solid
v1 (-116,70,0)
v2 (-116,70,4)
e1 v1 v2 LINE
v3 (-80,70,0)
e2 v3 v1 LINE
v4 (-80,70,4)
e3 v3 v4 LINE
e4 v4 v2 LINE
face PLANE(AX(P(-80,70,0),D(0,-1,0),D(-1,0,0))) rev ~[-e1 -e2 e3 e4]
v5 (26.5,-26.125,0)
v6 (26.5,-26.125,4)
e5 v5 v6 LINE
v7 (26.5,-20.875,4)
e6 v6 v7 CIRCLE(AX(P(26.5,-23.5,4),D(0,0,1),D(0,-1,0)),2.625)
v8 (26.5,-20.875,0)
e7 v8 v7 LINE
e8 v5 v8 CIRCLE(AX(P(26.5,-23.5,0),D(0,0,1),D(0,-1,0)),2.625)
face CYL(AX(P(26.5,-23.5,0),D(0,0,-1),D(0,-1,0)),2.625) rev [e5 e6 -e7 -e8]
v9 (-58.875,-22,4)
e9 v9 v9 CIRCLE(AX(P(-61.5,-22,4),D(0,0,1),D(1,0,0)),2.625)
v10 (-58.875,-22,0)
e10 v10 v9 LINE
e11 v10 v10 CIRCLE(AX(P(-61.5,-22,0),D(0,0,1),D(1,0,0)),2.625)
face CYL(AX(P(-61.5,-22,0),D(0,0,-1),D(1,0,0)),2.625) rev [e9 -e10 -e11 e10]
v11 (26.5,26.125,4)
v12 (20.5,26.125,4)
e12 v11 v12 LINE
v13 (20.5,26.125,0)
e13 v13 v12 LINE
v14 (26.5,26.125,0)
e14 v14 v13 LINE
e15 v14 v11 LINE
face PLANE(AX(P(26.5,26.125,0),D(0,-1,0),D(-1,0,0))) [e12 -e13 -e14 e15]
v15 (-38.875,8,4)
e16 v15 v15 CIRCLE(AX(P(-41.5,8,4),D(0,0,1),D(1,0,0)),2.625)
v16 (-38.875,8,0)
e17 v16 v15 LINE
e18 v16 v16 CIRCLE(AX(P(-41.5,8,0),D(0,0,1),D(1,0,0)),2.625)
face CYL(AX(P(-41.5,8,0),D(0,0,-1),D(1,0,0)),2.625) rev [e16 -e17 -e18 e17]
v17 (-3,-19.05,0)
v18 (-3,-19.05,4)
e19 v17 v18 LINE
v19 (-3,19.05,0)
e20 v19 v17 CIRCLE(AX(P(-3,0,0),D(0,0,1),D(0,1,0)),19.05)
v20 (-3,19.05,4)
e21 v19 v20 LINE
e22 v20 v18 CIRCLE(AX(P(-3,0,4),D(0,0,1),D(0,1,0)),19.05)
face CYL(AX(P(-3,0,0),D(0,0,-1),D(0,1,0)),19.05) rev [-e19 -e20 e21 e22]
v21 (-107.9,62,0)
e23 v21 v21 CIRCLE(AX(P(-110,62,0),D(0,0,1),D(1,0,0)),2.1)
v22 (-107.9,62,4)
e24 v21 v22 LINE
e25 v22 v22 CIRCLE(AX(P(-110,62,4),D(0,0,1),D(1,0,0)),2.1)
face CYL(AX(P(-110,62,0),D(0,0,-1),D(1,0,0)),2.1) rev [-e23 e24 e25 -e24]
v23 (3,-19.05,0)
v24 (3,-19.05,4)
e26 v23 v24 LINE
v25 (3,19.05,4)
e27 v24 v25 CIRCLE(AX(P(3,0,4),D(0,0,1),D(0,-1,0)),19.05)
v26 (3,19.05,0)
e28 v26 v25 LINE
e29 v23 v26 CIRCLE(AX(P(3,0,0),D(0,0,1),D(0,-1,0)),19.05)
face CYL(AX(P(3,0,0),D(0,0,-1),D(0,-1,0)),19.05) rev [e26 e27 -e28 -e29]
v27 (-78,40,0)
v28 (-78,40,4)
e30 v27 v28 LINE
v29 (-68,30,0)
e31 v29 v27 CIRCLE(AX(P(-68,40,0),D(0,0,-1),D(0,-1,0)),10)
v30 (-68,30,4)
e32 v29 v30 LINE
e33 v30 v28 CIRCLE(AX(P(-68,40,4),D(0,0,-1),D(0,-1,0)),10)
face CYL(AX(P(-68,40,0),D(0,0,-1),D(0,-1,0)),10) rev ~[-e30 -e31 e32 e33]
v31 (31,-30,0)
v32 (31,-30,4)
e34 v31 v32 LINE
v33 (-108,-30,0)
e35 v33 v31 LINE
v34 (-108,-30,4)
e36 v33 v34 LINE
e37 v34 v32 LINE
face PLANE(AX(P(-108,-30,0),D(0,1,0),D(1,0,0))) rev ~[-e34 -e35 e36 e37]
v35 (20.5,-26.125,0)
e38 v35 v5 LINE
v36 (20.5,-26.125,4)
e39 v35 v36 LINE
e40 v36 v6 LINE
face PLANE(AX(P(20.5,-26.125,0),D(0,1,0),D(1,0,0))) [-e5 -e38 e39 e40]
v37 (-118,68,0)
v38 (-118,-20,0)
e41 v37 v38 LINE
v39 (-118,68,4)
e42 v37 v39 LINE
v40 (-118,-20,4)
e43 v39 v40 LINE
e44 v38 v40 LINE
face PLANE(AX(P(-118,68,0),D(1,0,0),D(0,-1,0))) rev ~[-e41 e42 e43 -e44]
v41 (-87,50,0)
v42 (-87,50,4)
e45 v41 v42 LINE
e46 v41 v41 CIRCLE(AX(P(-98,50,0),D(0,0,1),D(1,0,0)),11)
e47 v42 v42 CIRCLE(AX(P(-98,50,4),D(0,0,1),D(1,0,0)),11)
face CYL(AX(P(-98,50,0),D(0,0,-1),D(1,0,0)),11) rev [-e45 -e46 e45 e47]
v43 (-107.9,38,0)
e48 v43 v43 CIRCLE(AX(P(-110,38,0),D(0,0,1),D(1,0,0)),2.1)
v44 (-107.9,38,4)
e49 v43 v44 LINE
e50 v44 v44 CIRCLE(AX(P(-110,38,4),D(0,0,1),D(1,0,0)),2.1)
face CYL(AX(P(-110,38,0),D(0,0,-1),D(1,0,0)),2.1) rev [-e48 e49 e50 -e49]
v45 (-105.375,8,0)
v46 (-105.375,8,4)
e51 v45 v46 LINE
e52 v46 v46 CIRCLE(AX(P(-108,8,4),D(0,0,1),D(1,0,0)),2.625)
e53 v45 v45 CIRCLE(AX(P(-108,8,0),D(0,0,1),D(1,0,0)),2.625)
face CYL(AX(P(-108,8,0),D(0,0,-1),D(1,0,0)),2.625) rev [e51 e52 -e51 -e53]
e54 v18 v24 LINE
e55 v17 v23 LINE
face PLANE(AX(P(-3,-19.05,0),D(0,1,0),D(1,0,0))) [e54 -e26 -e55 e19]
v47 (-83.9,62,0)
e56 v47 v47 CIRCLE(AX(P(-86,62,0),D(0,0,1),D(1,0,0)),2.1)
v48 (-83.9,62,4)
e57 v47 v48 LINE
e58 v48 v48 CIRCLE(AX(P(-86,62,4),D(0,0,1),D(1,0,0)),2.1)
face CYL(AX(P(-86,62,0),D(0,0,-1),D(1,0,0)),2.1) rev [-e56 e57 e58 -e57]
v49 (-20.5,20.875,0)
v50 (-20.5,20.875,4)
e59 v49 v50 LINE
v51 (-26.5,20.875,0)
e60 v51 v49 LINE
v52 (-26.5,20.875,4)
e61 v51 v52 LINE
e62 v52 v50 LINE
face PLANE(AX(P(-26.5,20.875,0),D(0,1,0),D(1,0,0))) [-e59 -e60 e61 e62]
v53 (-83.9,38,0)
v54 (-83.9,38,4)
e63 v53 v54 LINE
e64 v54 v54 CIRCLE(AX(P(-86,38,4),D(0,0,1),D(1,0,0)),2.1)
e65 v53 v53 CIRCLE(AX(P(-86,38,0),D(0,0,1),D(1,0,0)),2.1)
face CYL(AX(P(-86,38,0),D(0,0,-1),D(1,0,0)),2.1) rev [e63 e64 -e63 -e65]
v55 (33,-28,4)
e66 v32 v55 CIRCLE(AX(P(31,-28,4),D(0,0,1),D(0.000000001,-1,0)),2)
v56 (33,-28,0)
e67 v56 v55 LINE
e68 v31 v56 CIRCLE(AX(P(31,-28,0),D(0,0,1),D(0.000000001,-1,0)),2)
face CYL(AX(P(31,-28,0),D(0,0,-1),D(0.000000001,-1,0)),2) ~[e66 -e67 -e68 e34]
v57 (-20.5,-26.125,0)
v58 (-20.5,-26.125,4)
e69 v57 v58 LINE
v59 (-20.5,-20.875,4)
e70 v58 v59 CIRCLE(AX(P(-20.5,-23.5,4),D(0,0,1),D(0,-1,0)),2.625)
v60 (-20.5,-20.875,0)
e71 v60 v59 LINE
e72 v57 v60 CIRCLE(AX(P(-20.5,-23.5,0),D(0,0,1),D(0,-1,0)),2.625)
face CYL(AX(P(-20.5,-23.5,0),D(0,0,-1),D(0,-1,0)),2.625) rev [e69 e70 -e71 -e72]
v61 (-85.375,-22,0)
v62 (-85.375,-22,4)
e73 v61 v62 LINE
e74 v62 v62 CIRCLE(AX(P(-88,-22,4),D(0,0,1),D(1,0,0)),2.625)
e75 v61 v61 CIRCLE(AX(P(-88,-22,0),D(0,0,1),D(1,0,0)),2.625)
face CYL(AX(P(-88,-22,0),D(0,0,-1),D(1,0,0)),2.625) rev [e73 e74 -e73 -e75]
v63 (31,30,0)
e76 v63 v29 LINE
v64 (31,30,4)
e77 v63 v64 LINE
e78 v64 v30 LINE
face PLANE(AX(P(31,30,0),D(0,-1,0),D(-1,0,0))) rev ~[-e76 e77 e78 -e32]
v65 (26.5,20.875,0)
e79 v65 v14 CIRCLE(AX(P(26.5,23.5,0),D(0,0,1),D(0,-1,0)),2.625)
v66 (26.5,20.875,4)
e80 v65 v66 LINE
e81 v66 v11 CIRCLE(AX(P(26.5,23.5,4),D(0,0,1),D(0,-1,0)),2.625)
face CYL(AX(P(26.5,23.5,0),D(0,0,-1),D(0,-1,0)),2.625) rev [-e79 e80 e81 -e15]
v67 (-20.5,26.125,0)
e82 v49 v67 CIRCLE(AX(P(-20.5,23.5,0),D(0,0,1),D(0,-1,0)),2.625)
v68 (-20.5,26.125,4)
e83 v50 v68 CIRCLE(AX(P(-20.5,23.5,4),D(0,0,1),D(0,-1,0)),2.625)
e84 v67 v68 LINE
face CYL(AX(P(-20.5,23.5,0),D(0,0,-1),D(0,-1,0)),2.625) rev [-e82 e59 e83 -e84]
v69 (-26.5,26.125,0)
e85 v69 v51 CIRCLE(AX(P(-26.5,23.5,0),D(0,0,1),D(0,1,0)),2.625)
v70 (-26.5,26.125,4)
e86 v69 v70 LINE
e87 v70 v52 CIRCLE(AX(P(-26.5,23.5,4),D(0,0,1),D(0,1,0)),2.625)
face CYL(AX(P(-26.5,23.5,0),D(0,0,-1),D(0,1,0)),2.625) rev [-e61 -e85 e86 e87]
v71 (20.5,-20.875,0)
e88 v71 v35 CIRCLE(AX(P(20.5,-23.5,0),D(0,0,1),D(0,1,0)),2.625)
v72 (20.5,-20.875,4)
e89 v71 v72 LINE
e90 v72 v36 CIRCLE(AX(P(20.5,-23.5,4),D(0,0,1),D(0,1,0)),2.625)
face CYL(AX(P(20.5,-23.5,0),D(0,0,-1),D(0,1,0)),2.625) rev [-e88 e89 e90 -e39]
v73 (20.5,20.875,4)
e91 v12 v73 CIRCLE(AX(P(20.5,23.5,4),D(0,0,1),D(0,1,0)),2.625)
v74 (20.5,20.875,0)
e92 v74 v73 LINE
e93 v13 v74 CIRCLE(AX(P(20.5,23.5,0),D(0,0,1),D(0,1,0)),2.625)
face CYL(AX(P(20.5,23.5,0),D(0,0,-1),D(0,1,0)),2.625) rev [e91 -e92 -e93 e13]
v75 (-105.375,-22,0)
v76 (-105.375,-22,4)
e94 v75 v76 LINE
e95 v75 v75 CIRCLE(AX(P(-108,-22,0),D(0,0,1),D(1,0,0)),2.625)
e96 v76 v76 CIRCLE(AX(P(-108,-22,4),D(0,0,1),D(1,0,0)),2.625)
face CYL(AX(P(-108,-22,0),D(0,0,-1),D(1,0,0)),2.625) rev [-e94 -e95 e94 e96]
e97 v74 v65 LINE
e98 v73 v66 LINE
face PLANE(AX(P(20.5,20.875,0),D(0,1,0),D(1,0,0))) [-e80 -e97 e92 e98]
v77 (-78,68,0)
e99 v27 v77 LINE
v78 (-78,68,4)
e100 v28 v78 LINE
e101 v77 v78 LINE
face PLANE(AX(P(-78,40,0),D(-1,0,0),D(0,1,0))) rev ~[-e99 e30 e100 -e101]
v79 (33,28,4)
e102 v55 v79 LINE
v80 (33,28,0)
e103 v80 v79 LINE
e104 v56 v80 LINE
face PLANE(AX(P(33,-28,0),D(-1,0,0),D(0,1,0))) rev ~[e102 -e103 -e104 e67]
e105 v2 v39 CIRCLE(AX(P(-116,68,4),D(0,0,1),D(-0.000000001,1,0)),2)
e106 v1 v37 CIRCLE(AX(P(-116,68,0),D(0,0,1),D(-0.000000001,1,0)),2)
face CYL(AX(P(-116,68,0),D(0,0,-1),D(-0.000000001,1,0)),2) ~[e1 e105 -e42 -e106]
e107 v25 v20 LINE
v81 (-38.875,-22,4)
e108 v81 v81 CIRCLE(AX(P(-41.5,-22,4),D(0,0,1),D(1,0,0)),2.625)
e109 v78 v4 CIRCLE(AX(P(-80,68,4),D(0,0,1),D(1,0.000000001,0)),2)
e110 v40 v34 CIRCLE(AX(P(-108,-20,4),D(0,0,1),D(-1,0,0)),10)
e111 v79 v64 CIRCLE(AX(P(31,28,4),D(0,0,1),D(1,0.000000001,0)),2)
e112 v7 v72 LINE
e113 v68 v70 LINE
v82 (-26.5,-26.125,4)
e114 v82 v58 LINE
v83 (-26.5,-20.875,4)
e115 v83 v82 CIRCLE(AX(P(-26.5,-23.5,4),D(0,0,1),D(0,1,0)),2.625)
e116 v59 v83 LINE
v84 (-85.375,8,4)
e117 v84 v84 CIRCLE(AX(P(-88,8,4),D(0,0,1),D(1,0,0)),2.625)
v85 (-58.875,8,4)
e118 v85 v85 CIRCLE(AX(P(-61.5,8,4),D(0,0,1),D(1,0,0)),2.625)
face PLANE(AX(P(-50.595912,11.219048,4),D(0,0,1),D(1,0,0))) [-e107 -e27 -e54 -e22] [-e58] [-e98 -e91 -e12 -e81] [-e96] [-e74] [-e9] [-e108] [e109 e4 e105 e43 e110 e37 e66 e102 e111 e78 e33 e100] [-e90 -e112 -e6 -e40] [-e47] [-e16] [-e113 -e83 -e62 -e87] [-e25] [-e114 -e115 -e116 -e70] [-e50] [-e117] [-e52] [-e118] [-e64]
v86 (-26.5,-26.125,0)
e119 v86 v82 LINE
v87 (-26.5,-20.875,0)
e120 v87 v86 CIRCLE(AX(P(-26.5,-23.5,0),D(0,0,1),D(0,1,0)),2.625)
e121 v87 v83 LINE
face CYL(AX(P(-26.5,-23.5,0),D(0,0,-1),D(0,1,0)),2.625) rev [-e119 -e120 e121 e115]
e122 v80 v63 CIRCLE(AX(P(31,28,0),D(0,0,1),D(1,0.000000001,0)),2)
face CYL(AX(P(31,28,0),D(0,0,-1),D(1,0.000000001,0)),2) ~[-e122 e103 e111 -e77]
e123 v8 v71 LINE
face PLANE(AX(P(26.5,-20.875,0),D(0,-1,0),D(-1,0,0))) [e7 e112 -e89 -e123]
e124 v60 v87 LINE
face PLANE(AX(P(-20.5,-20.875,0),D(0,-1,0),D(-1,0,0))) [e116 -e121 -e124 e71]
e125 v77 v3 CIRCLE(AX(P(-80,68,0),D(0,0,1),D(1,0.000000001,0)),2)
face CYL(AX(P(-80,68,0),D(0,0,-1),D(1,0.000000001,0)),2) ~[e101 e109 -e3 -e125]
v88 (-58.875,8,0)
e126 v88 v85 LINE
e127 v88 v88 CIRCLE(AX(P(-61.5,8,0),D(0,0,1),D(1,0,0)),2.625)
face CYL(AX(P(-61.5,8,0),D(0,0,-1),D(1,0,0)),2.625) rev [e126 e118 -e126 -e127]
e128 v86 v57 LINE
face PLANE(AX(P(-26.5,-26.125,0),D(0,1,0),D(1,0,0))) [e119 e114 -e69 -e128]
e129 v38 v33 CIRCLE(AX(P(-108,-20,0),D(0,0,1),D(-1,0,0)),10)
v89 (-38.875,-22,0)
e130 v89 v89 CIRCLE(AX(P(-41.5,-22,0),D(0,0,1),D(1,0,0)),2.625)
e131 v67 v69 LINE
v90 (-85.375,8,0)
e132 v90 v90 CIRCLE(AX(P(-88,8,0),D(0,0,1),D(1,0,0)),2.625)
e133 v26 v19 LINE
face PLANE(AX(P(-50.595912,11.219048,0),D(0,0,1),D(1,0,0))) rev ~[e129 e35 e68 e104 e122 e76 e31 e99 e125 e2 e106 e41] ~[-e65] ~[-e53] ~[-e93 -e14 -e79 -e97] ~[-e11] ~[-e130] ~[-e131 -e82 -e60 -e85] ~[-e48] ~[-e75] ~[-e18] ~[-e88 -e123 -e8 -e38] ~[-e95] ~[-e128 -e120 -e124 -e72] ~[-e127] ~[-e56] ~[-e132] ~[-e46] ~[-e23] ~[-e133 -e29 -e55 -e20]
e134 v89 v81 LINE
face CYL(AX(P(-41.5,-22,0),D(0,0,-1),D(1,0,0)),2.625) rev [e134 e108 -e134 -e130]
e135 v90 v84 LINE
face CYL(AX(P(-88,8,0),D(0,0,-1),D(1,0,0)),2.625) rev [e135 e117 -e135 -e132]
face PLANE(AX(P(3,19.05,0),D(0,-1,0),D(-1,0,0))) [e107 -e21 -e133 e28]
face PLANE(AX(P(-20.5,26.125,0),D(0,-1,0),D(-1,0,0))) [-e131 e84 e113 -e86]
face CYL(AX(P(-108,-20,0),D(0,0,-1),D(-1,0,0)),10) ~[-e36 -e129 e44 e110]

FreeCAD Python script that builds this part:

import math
import FreeCAD as App
import Part
import Sketcher

V = App.Vector
Q = App.Units.Quantity

doc = App.newDocument("Part")
params = doc.addObject("Spreadsheet::Sheet", "Params")
for row, (alias, value) in enumerate([
    ("sketch1_diameter", "22 mm"),
    ("sketch1_radius", "2 mm"),
    ("sketch1_radius2", "10 mm"),
    ("sketch1_diameter2", "4.2 mm"),
    ("sketch1_diameter3", "5.25 mm"),
    ("pad1_length", "4 mm"),
], start=1):
    params.set(f"A{row}", alias)
    params.set(f"B{row}", "=" + value)
    params.setAlias(f"B{row}", alias)

body = doc.addObject("PartDesign::Body", "Body")

# Sketch on XY plane
sketch1 = body.newObject("Sketcher::SketchObject", "Sketch")
sketch1.AttachmentSupport = (doc.getObject("XY_Plane"), [""])
sketch1.MapMode = "FlatFace"
sketch1.addGeometry([
    Part.LineSegment(V(-80, 70, 0), V(-116, 70, 0)),  # 0
    Part.ArcOfCircle(Part.Circle(V(-116, 68, 0), V(0, 0, 1), 2), math.radians(90), math.radians(180)),  # 1
    Part.LineSegment(V(-118, 68, 0), V(-118, -20, 0)),  # 2
    Part.ArcOfCircle(Part.Circle(V(-108, -20, 0), V(0, 0, 1), 10), math.radians(180), math.radians(270)),  # 3
    Part.LineSegment(V(-108, -30, 0), V(31, -30, 0)),  # 4
    Part.ArcOfCircle(Part.Circle(V(31, -28, 0), V(0, 0, 1), 2), math.radians(-90), math.radians(0)),  # 5
    Part.LineSegment(V(33, -28, 0), V(33, 28, 0)),  # 6
    Part.ArcOfCircle(Part.Circle(V(31, 28, 0), V(0, 0, 1), 2), math.radians(0), math.radians(90)),  # 7
    Part.LineSegment(V(31, 30, 0), V(-68, 30, 0)),  # 8
    Part.ArcOfCircle(Part.Circle(V(-68, 40, 0), V(0, 0, 1), 10), math.radians(180), math.radians(270)),  # 9
    Part.LineSegment(V(-78, 40, 0), V(-78, 68, 0)),  # 10
    Part.ArcOfCircle(Part.Circle(V(-80, 68, 0), V(0, 0, 1), 2), math.radians(0), math.radians(90)),  # 11
    Part.Circle(V(-108, -22, 0), V(0, 0, 1), 2.6),  # 12
    Part.Circle(V(-88, -22, 0), V(0, 0, 1), 2.6),  # 13
    Part.Circle(V(-61.5, -22, 0), V(0, 0, 1), 2.6),  # 14
    Part.Circle(V(-41.5, -22, 0), V(0, 0, 1), 2.6),  # 15
    Part.Circle(V(-108, 8, 0), V(0, 0, 1), 2.6),  # 16
    Part.Circle(V(-88, 8, 0), V(0, 0, 1), 2.6),  # 17
    Part.Circle(V(-61.5, 8, 0), V(0, 0, 1), 2.6),  # 18
    Part.Circle(V(-41.5, 8, 0), V(0, 0, 1), 2.6),  # 19
    Part.LineSegment(V(-26.5, -20.9, 0), V(-20.5, -20.9, 0)),  # 20
    Part.ArcOfCircle(Part.Circle(V(-20.5, -23.5, 0), V(0, 0, 1), 2.6), math.radians(-90), math.radians(90)),  # 21
    Part.LineSegment(V(-20.5, -26.1, 0), V(-26.5, -26.1, 0)),  # 22
    Part.ArcOfCircle(Part.Circle(V(-26.5, -23.5, 0), V(0, 0, 1), 2.6), math.radians(90), math.radians(270)),  # 23
    Part.LineSegment(V(20.5, -20.9, 0), V(26.5, -20.9, 0)),  # 24
    Part.ArcOfCircle(Part.Circle(V(26.5, -23.5, 0), V(0, 0, 1), 2.6), math.radians(-90), math.radians(90)),  # 25
    Part.LineSegment(V(26.5, -26.1, 0), V(20.5, -26.1, 0)),  # 26
    Part.ArcOfCircle(Part.Circle(V(20.5, -23.5, 0), V(0, 0, 1), 2.6), math.radians(90), math.radians(270)),  # 27
    Part.LineSegment(V(3, -19.1, 0), V(-3, -19.1, 0)),  # 28
    Part.ArcOfCircle(Part.Circle(V(-3, 0, 0), V(0, 0, 1), 19.1), math.radians(90), math.radians(270)),  # 29
    Part.LineSegment(V(-3, 19.1, 0), V(3, 19.1, 0)),  # 30
    Part.ArcOfCircle(Part.Circle(V(3, 0, 0), V(0, 0, 1), 19.1), math.radians(-90), math.radians(90)),  # 31
    Part.Circle(V(-110, 38, 0), V(0, 0, 1), 2.1),  # 32
    Part.Circle(V(-86, 38, 0), V(0, 0, 1), 2.1),  # 33
    Part.Circle(V(-98, 50, 0), V(0, 0, 1), 11),  # 34
    Part.Circle(V(-110, 62, 0), V(0, 0, 1), 2.1),  # 35
    Part.Circle(V(-86, 62, 0), V(0, 0, 1), 2.1),  # 36
    Part.LineSegment(V(-20.5, 20.9, 0), V(-26.5, 20.9, 0)),  # 37
    Part.ArcOfCircle(Part.Circle(V(-26.5, 23.5, 0), V(0, 0, 1), 2.6), math.radians(90), math.radians(270)),  # 38
    Part.LineSegment(V(-26.5, 26.1, 0), V(-20.5, 26.1, 0)),  # 39
    Part.ArcOfCircle(Part.Circle(V(-20.5, 23.5, 0), V(0, 0, 1), 2.6), math.radians(-90), math.radians(90)),  # 40
    Part.LineSegment(V(26.5, 20.9, 0), V(20.5, 20.9, 0)),  # 41
    Part.ArcOfCircle(Part.Circle(V(20.5, 23.5, 0), V(0, 0, 1), 2.6), math.radians(90), math.radians(270)),  # 42
    Part.LineSegment(V(20.5, 26.1, 0), V(26.5, 26.1, 0)),  # 43
    Part.ArcOfCircle(Part.Circle(V(26.5, 23.5, 0), V(0, 0, 1), 2.6), math.radians(-90), math.radians(90)),  # 44
], False)
sketch1.addConstraint([
    Sketcher.Constraint("Tangent", 0, 2, 1, 1),
    Sketcher.Constraint("Tangent", 1, 2, 2, 1),
    Sketcher.Constraint("Tangent", 2, 2, 3, 1),
    Sketcher.Constraint("Tangent", 3, 2, 4, 1),
    Sketcher.Constraint("Tangent", 4, 2, 5, 1),
    Sketcher.Constraint("Tangent", 5, 2, 6, 1),
    Sketcher.Constraint("Tangent", 6, 2, 7, 1),
    Sketcher.Constraint("Tangent", 7, 2, 8, 1),
    Sketcher.Constraint("Tangent", 8, 2, 9, 2),
    Sketcher.Constraint("Tangent", 9, 1, 10, 1),
    Sketcher.Constraint("Tangent", 10, 2, 11, 1),
    Sketcher.Constraint("Tangent", 11, 2, 0, 1),
    Sketcher.Constraint("Tangent", 20, 2, 21, 2),
    Sketcher.Constraint("Tangent", 21, 1, 22, 1),
    Sketcher.Constraint("Tangent", 22, 2, 23, 2),
    Sketcher.Constraint("Tangent", 23, 1, 20, 1),
    Sketcher.Constraint("Tangent", 24, 2, 25, 2),
    Sketcher.Constraint("Tangent", 25, 1, 26, 1),
    Sketcher.Constraint("Tangent", 26, 2, 27, 2),
    Sketcher.Constraint("Tangent", 27, 1, 24, 1),
    Sketcher.Constraint("Tangent", 28, 2, 29, 2),
    Sketcher.Constraint("Tangent", 29, 1, 30, 1),
    Sketcher.Constraint("Tangent", 30, 2, 31, 2),
    Sketcher.Constraint("Tangent", 31, 1, 28, 1),
    Sketcher.Constraint("Tangent", 37, 2, 38, 2),
    Sketcher.Constraint("Tangent", 38, 1, 39, 1),
    Sketcher.Constraint("Tangent", 39, 2, 40, 2),
    Sketcher.Constraint("Tangent", 40, 1, 37, 1),
    Sketcher.Constraint("Tangent", 41, 2, 42, 2),
    Sketcher.Constraint("Tangent", 42, 1, 43, 1),
    Sketcher.Constraint("Tangent", 43, 2, 44, 2),
    Sketcher.Constraint("Tangent", 44, 1, 41, 1),
    Sketcher.Constraint("Horizontal", 0),
    Sketcher.Constraint("Vertical", 2),
    Sketcher.Constraint("Horizontal", 4),
    Sketcher.Constraint("Vertical", 6),
    Sketcher.Constraint("Horizontal", 8),
    Sketcher.Constraint("Vertical", 10),
    Sketcher.Constraint("Horizontal", 20),
    Sketcher.Constraint("Horizontal", 22),
    Sketcher.Constraint("Horizontal", 24),
    Sketcher.Constraint("Horizontal", 26),
    Sketcher.Constraint("Horizontal", 28),
    Sketcher.Constraint("Horizontal", 30),
    Sketcher.Constraint("Horizontal", 37),
    Sketcher.Constraint("Horizontal", 39),
    Sketcher.Constraint("Horizontal", 41),
    Sketcher.Constraint("Horizontal", 43),
    Sketcher.Constraint("Equal", 1, 5),
    Sketcher.Constraint("Equal", 5, 7),
    Sketcher.Constraint("Equal", 3, 9),
    Sketcher.Constraint("Equal", 7, 11),
    Sketcher.Constraint("Equal", 12, 13),
    Sketcher.Constraint("Equal", 13, 14),
    Sketcher.Constraint("Equal", 14, 15),
    Sketcher.Constraint("Equal", 15, 16),
    Sketcher.Constraint("Equal", 16, 17),
    Sketcher.Constraint("Equal", 17, 18),
    Sketcher.Constraint("Equal", 18, 19),
    Sketcher.Constraint("Equal", 19, 21),
    Sketcher.Constraint("Equal", 23, 25),
    Sketcher.Constraint("Equal", 32, 33),
    Sketcher.Constraint("Equal", 33, 35),
    Sketcher.Constraint("Equal", 35, 36),
    Sketcher.Constraint("Equal", 27, 38),
    Sketcher.Constraint("Equal", 40, 42),
    Sketcher.Constraint("Symmetric", 29, 3, 31, 3, -1, 1),
    Sketcher.Constraint("Symmetric", 25, 3, 38, 3, -1, 1),
    Sketcher.Constraint("Symmetric", 21, 3, 42, 3, -1, 1),
    Sketcher.Constraint("Symmetric", 23, 3, 25, 3, -2),
    Sketcher.Constraint("Horizontal", 12, 3, 13, 3),
    Sketcher.Constraint("Horizontal", 13, 3, 14, 3),
    Sketcher.Constraint("Horizontal", 14, 3, 15, 3),
    Sketcher.Constraint("Horizontal", 16, 3, 17, 3),
    Sketcher.Constraint("Horizontal", 17, 3, 18, 3),
    Sketcher.Constraint("Horizontal", 18, 3, 19, 3),
    Sketcher.Constraint("Horizontal", 32, 3, 33, 3),
    Sketcher.Constraint("Horizontal", 35, 3, 36, 3),
    Sketcher.Constraint("Vertical", 3, 3, 12, 3),
    Sketcher.Constraint("Vertical", 12, 3, 16, 3),
    Sketcher.Constraint("Vertical", 13, 3, 17, 3),
    Sketcher.Constraint("Vertical", 14, 3, 18, 3),
    Sketcher.Constraint("Vertical", 15, 3, 19, 3),
    Sketcher.Constraint("Vertical", 32, 3, 35, 3),
    Sketcher.Constraint("Vertical", 33, 3, 36, 3),
    Sketcher.Constraint("Vertical", 21, 3, 40, 3),
    Sketcher.Constraint("Vertical", 27, 3, 42, 3),
    Sketcher.Constraint("Vertical", 25, 3, 44, 3),
    Sketcher.Constraint("Equal", 26, 28),
    Sketcher.Constraint("Diameter", 34, Q("22 mm")),
    Sketcher.Constraint("Radius", 1, Q("2 mm")),
    Sketcher.Constraint("Radius", 3, Q("10 mm")),
    Sketcher.Constraint("Diameter", 32, Q("4.2 mm")),
    Sketcher.Constraint("Diameter", 12, Q("5.25 mm")),
    Sketcher.Constraint("DistanceX", 0, 2, 0, 1, Q("36 mm")),
    Sketcher.Constraint("DistanceX", 4, 1, 4, 2, Q("139 mm")),
    Sketcher.Constraint("DistanceX", 20, 1, 20, 2, Q("6 mm")),
    Sketcher.Constraint("DistanceY", 2, 2, 2, 1, Q("88 mm")),
    Sketcher.Constraint("DistanceY", 6, 1, 6, 2, Q("56 mm")),
    Sketcher.Constraint("Radius", 29, Q("19.05 mm")),
    Sketcher.Constraint("DistanceX", 1, 3, -1, 1, Q("116 mm")),
    Sketcher.Constraint("DistanceY", -1, 1, 1, 3, Q("68 mm")),
    Sketcher.Constraint("DistanceY", 12, 3, -1, 1, Q("22 mm")),
    Sketcher.Constraint("DistanceX", 13, 3, -1, 1, Q("88 mm")),
    Sketcher.Constraint("DistanceY", -1, 1, 16, 3, Q("8 mm")),
    Sketcher.Constraint("DistanceX", 32, 3, -1, 1, Q("110 mm")),
    Sketcher.Constraint("DistanceY", -1, 1, 32, 3, Q("38 mm")),
    Sketcher.Constraint("DistanceX", 33, 3, -1, 1, Q("86 mm")),
    Sketcher.Constraint("DistanceX", 34, 3, -1, 1, Q("98 mm")),
    Sketcher.Constraint("DistanceY", -1, 1, 34, 3, Q("50 mm")),
    Sketcher.Constraint("DistanceY", -1, 1, 35, 3, Q("62 mm")),
    Sketcher.Constraint("DistanceX", 14, 3, -1, 1, Q("61.5 mm")),
    Sketcher.Constraint("DistanceX", 15, 3, -1, 1, Q("41.5 mm")),
    Sketcher.Constraint("DistanceX", 21, 3, -1, 1, Q("20.5 mm")),
    Sketcher.Constraint("DistanceY", 21, 3, -1, 1, Q("23.5 mm")),
])
sketch1.setExpression("Constraints[89]", "Params.sketch1_diameter")
sketch1.setExpression("Constraints[90]", "Params.sketch1_radius")
sketch1.setExpression("Constraints[91]", "Params.sketch1_radius2")
sketch1.setExpression("Constraints[92]", "Params.sketch1_diameter2")
sketch1.setExpression("Constraints[93]", "Params.sketch1_diameter3")
pad1 = body.newObject("PartDesign::Pad", "Pad")
pad1.Profile = sketch1
pad1.setExpression("Length", "Params.pad1_length")

doc.recompute()
